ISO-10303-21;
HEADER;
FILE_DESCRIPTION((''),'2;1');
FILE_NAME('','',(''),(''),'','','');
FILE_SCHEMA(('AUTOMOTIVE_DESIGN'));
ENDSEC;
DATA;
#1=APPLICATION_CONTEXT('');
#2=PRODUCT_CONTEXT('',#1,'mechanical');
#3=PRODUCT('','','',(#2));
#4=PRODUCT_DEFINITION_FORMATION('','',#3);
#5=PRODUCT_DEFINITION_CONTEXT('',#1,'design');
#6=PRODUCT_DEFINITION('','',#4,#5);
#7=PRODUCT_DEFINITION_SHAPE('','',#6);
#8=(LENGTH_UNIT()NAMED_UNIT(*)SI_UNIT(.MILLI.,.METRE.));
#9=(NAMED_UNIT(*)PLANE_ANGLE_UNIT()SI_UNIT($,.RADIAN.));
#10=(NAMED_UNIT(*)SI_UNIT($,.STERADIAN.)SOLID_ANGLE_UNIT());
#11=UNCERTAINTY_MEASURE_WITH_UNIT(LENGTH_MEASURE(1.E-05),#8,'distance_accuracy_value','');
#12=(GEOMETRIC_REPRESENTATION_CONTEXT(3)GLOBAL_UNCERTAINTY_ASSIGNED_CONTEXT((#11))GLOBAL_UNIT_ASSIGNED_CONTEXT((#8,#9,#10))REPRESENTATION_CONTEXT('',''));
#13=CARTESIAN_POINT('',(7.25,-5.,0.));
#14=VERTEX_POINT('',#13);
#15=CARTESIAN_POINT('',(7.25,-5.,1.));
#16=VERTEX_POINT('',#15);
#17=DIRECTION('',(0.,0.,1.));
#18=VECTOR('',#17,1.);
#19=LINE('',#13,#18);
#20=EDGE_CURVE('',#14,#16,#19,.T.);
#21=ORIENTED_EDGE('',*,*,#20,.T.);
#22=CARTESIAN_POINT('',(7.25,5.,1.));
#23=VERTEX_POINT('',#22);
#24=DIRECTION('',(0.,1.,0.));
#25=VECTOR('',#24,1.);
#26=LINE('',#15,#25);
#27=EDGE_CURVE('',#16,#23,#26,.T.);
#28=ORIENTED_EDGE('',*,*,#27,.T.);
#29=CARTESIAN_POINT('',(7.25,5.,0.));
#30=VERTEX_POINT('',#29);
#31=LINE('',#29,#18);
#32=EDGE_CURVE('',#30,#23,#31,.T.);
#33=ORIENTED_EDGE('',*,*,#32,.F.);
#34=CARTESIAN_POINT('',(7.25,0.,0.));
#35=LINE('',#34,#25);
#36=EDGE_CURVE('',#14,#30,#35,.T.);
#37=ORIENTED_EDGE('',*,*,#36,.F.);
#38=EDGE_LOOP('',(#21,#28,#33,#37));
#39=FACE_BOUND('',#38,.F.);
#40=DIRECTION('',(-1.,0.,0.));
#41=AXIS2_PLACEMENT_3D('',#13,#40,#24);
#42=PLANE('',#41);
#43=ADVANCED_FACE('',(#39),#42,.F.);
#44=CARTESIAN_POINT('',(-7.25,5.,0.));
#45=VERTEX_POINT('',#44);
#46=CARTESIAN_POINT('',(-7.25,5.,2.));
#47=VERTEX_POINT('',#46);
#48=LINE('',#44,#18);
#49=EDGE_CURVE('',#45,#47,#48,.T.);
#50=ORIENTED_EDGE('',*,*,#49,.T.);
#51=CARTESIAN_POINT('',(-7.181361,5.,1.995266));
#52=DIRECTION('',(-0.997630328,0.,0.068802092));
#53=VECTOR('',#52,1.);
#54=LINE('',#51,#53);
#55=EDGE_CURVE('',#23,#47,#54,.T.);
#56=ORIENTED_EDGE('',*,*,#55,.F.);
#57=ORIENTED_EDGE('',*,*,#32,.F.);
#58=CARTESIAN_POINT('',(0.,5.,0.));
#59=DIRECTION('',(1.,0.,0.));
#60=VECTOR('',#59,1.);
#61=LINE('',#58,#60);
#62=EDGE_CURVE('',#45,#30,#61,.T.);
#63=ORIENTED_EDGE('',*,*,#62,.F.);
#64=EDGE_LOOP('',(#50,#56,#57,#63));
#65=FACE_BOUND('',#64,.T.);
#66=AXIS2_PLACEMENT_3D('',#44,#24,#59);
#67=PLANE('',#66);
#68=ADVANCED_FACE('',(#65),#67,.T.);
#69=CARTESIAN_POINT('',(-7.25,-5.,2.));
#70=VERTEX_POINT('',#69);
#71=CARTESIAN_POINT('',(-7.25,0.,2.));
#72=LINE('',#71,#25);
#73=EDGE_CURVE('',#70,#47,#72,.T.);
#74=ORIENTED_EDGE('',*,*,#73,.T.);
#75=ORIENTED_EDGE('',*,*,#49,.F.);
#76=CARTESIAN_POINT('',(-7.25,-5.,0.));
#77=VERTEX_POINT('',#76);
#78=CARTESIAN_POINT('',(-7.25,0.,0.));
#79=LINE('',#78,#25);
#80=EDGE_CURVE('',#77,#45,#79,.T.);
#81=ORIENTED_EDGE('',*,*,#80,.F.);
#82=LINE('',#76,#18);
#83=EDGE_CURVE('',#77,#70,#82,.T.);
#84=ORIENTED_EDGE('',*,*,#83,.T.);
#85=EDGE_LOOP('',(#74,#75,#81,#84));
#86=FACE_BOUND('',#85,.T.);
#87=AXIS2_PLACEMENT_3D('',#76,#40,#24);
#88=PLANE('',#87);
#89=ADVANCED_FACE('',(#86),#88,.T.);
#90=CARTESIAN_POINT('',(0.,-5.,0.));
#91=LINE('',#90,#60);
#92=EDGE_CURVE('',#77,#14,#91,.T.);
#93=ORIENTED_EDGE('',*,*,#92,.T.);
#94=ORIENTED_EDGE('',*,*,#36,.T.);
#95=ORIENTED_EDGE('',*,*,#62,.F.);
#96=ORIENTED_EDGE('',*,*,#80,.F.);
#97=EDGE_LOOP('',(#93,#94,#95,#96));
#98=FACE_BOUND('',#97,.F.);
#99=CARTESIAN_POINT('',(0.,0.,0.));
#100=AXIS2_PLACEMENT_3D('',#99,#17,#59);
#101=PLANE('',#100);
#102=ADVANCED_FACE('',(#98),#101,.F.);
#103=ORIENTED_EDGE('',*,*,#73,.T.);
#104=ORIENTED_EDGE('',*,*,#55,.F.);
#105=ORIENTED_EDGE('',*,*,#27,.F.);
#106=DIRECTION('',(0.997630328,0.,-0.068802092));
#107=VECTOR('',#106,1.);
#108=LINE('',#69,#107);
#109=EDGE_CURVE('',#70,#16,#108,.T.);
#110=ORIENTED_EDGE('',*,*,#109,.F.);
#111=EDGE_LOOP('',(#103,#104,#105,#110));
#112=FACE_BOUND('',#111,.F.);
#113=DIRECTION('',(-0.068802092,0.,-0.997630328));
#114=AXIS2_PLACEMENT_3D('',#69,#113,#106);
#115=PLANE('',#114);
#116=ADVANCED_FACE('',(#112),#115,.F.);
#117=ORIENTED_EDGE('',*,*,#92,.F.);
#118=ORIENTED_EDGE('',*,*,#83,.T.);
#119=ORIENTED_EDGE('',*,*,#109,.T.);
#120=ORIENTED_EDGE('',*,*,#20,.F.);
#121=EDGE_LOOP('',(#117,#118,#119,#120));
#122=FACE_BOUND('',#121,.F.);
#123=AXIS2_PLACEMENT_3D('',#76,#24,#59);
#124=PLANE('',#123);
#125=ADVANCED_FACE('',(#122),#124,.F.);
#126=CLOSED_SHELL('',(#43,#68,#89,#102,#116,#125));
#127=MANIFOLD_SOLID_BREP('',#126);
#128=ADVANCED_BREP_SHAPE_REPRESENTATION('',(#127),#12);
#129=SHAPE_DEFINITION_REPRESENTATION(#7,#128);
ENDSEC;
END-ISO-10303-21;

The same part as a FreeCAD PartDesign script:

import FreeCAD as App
import Part
import Sketcher
Q = App.Units.Quantity

doc = App.newDocument("Part")
params = doc.addObject("Spreadsheet::Sheet", "Params")
for row, (alias, value) in enumerate([
    ("sketch1_height", "10 mm"),
    ("sketch1_width", "14.5 mm"),
    ("pad1_length", "2 mm"),
    ("sketch2_height", "1 mm"),
    ("sketch2_width", "14.5 mm"),
], start=1):
    params.set(f"A{row}", alias)
    params.set(f"B{row}", "=" + value)
    params.setAlias(f"B{row}", alias)

body = doc.addObject("PartDesign::Body", "Body")

sketch1 = body.newObject("Sketcher::SketchObject", "Sketch")
sketch1.AttachmentSupport = (doc.getObject("XY_Plane"), [""])
sketch1.MapMode = "FlatFace"
sketch1.addGeometry([
    Part.LineSegment(App.Vector(-7, 5, 0), App.Vector(-7, -5, 0)),
    Part.LineSegment(App.Vector(-7, -5, 0), App.Vector(7, -5, 0)),
    Part.LineSegment(App.Vector(7, -5, 0), App.Vector(7, 5, 0)),
    Part.LineSegment(App.Vector(7, 5, 0), App.Vector(-7, 5, 0)),
], False)
sketch1.addConstraint([
    Sketcher.Constraint("Coincident", 0, 2, 1, 1),
    Sketcher.Constraint("Coincident", 1, 2, 2, 1),
    Sketcher.Constraint("Coincident", 2, 2, 3, 1),
    Sketcher.Constraint("Coincident", 3, 2, 0, 1),
    Sketcher.Constraint("Vertical", 0),
    Sketcher.Constraint("Horizontal", 1),
    Sketcher.Constraint("Vertical", 2),
    Sketcher.Constraint("Horizontal", 3),
    Sketcher.Constraint("Symmetric", 0, 2, 2, 2, -1, 1),
    Sketcher.Constraint("DistanceY", 0, 2, 0, 1, Q("10 mm")),
    Sketcher.Constraint("DistanceX", 1, 1, 1, 2, Q("14.5 mm")),
])
sketch1.setExpression("Constraints[9]", "Params.sketch1_height")
sketch1.setExpression("Constraints[10]", "Params.sketch1_width")
pad1 = body.newObject("PartDesign::Pad", "Pad")
pad1.Profile = sketch1
pad1.setExpression("Length", "Params.pad1_length")

sketch2 = body.newObject("Sketcher::SketchObject", "Sketch001")
sketch2.AttachmentSupport = (doc.getObject("XZ_Plane"), [""])
sketch2.MapMode = "FlatFace"
sketch2.AttachmentOffset = App.Placement(App.Vector(0, 0, 5), App.Rotation())
sketch2.addGeometry([
    Part.LineSegment(App.Vector(7.2, 2, 0), App.Vector(-7.2, 2, 0)),
    Part.LineSegment(App.Vector(-7.2, 2, 0), App.Vector(7.2, 1, 0)),
    Part.LineSegment(App.Vector(7.2, 1, 0), App.Vector(7.2, 2, 0)),
], False)
sketch2.addConstraint([
    Sketcher.Constraint("Coincident", 0, 2, 1, 1),
    Sketcher.Constraint("Coincident", 1, 2, 2, 1),
    Sketcher.Constraint("Coincident", 2, 2, 0, 1),
    Sketcher.Constraint("Horizontal", 0),
    Sketcher.Constraint("Vertical", 2),
    Sketcher.Constraint("DistanceY", 2, 1, 2, 2, Q("1 mm")),
    Sketcher.Constraint("DistanceX", 0, 2, 0, 1, Q("14.5 mm")),
    Sketcher.Constraint("DistanceY", -1, 1, 0, 2, Q("2 mm")),
    Sketcher.Constraint("DistanceX", 0, 2, -1, 1, Q("7.25 mm")),
])
sketch2.setExpression("Constraints[5]", "Params.sketch2_height")
sketch2.setExpression("Constraints[6]", "Params.sketch2_width")
pocket1 = body.newObject("PartDesign::Pocket", "Pocket")
pocket1.Profile = sketch2
pocket1.Type = "ThroughAll"

doc.recompute()
